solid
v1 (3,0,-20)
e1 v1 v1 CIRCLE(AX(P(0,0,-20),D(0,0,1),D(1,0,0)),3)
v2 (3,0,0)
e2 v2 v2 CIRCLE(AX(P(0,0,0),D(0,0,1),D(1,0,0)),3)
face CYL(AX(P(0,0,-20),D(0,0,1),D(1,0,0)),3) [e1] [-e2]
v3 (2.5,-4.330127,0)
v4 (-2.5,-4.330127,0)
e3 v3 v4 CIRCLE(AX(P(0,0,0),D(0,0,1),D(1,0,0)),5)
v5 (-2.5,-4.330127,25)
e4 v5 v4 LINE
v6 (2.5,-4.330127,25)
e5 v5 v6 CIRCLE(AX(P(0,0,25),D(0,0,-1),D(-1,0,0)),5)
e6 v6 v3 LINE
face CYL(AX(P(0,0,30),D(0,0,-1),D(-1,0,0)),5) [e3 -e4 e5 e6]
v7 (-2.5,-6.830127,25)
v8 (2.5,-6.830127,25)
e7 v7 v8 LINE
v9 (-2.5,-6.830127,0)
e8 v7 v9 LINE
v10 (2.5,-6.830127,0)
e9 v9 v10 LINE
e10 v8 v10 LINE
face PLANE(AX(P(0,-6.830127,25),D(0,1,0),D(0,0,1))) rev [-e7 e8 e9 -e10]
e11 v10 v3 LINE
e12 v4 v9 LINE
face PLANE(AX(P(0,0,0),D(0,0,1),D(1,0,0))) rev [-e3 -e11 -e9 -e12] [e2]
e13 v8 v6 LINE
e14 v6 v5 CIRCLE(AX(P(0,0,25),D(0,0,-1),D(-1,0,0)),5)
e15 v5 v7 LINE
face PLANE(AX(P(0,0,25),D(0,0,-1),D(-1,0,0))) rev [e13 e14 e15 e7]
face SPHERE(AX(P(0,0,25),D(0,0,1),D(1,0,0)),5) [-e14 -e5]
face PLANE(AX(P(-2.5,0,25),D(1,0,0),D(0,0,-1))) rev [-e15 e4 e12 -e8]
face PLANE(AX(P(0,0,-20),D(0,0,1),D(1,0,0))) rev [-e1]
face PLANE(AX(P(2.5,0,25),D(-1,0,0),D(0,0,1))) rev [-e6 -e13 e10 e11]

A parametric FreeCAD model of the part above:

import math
import FreeCAD as App
import Part
import Sketcher

V = App.Vector
Q = App.Units.Quantity


def edges_at(feature, points):
    """Names of the edges that pass closest to the given points."""
    edges = feature.Shape.Edges
    near = lambda p: min(range(len(edges)), key=lambda i: edges[i].distToShape(Part.Vertex(*p))[0])
    return sorted({f"Edge{near(p) + 1}" for p in points})

doc = App.newDocument("Part")
params = doc.addObject("Spreadsheet::Sheet", "Params")
for row, (alias, value) in enumerate([
    ("sketch1_diameter", "10 mm"),
    ("pad1_length", "30 mm"),
    ("sketch2_diameter", "6 mm"),
    ("pad2_length", "20 mm"),
    ("fillet_radius", "5 mm"),
    ("sketch3_radius", "5 mm"),
    ("sketch3_width", "5 mm"),
    ("sketch3_height", "2.5 mm"),
    ("pad3_length", "25 mm"),
], start=1):
    params.set(f"A{row}", alias)
    params.set(f"B{row}", "=" + value)
    params.setAlias(f"B{row}", alias)

body = doc.addObject("PartDesign::Body", "Body")

# Sketch on XY plane
sketch1 = body.newObject("Sketcher::SketchObject", "Sketch")
sketch1.AttachmentSupport = (doc.getObject("XY_Plane"), [""])
sketch1.MapMode = "FlatFace"
sketch1.addGeometry(Part.Circle(V(0, 0, 0), V(0, 0, 1), 5), False)
sketch1.addConstraint(Sketcher.Constraint("Coincident", 0, 3, -1, 1))
sketch1.addConstraint(Sketcher.Constraint("Diameter", 0, Q("10 mm")))
sketch1.setExpression("Constraints[1]", "Params.sketch1_diameter")
pad1 = body.newObject("PartDesign::Pad", "Pad")
pad1.Profile = sketch1
pad1.setExpression("Length", "Params.pad1_length")

# Sketch on XY plane
sketch2 = body.newObject("Sketcher::SketchObject", "Sketch001")
sketch2.AttachmentSupport = (doc.getObject("XY_Plane"), [""])
sketch2.MapMode = "FlatFace"
sketch2.addGeometry(Part.Circle(V(0, 0, 0), V(0, 0, 1), 3), False)
sketch2.addConstraint(Sketcher.Constraint("Coincident", 0, 3, -1, 1))
sketch2.addConstraint(Sketcher.Constraint("Diameter", 0, Q("6 mm")))
sketch2.setExpression("Constraints[1]", "Params.sketch2_diameter")
pad2 = body.newObject("PartDesign::Pad", "Pad001")
pad2.Profile = sketch2
pad2.setExpression("Length", "Params.pad2_length")
pad2.Reversed = True
doc.recompute()

fillet = body.newObject("PartDesign::Fillet", "Fillet")
fillet.Base = (pad2, edges_at(pad2, [(-5, 0, 30)]))
fillet.setExpression("Radius", "Params.fillet_radius")

# Sketch on XY plane
sketch3 = body.newObject("Sketcher::SketchObject", "Sketch002")
sketch3.AttachmentSupport = (doc.getObject("XY_Plane"), [""])
sketch3.MapMode = "FlatFace"
sketch3.addGeometry(Part.LineSegment(V(-2.5, -6.8, 0), V(-2.5, -4.3, 0)), False)
sketch3.addGeometry(Part.ArcOfCircle(Part.Circle(V(0, 0, 0), V(0, 0, 1), 5), math.radians(-120), math.radians(-60)), False)
sketch3.addGeometry(Part.LineSegment(V(2.5, -4.3, 0), V(2.5, -6.8, 0)), False)
sketch3.addGeometry(Part.LineSegment(V(2.5, -6.8, 0), V(-2.5, -6.8, 0)), False)
sketch3.addConstraint(Sketcher.Constraint("Coincident", 0, 2, 1, 1))
sketch3.addConstraint(Sketcher.Constraint("Coincident", 1, 2, 2, 1))
sketch3.addConstraint(Sketcher.Constraint("Coincident", 2, 2, 3, 1))
sketch3.addConstraint(Sketcher.Constraint("Coincident", 3, 2, 0, 1))
sketch3.addConstraint(Sketcher.Constraint("Vertical", 0))
sketch3.addConstraint(Sketcher.Constraint("Vertical", 2))
sketch3.addConstraint(Sketcher.Constraint("Horizontal", 3))
sketch3.addConstraint(Sketcher.Constraint("Coincident", 1, 3, -1, 1))
sketch3.addConstraint(Sketcher.Constraint("Horizontal", 0, 2, 1, 2))
sketch3.addConstraint(Sketcher.Constraint("Radius", 1, Q("5 mm")))
sketch3.addConstraint(Sketcher.Constraint("DistanceX", 3, 2, 3, 1, Q("5 mm")))
sketch3.addConstraint(Sketcher.Constraint("DistanceY", 0, 1, 0, 2, Q("2.5 mm")))
sketch3.setExpression("Constraints[9]", "Params.sketch3_radius")
sketch3.setExpression("Constraints[10]", "Params.sketch3_width")
sketch3.setExpression("Constraints[11]", "Params.sketch3_height")
pad3 = body.newObject("PartDesign::Pad", "Pad002")
pad3.Profile = sketch3
pad3.setExpression("Length", "Params.pad3_length")

doc.recompute()
